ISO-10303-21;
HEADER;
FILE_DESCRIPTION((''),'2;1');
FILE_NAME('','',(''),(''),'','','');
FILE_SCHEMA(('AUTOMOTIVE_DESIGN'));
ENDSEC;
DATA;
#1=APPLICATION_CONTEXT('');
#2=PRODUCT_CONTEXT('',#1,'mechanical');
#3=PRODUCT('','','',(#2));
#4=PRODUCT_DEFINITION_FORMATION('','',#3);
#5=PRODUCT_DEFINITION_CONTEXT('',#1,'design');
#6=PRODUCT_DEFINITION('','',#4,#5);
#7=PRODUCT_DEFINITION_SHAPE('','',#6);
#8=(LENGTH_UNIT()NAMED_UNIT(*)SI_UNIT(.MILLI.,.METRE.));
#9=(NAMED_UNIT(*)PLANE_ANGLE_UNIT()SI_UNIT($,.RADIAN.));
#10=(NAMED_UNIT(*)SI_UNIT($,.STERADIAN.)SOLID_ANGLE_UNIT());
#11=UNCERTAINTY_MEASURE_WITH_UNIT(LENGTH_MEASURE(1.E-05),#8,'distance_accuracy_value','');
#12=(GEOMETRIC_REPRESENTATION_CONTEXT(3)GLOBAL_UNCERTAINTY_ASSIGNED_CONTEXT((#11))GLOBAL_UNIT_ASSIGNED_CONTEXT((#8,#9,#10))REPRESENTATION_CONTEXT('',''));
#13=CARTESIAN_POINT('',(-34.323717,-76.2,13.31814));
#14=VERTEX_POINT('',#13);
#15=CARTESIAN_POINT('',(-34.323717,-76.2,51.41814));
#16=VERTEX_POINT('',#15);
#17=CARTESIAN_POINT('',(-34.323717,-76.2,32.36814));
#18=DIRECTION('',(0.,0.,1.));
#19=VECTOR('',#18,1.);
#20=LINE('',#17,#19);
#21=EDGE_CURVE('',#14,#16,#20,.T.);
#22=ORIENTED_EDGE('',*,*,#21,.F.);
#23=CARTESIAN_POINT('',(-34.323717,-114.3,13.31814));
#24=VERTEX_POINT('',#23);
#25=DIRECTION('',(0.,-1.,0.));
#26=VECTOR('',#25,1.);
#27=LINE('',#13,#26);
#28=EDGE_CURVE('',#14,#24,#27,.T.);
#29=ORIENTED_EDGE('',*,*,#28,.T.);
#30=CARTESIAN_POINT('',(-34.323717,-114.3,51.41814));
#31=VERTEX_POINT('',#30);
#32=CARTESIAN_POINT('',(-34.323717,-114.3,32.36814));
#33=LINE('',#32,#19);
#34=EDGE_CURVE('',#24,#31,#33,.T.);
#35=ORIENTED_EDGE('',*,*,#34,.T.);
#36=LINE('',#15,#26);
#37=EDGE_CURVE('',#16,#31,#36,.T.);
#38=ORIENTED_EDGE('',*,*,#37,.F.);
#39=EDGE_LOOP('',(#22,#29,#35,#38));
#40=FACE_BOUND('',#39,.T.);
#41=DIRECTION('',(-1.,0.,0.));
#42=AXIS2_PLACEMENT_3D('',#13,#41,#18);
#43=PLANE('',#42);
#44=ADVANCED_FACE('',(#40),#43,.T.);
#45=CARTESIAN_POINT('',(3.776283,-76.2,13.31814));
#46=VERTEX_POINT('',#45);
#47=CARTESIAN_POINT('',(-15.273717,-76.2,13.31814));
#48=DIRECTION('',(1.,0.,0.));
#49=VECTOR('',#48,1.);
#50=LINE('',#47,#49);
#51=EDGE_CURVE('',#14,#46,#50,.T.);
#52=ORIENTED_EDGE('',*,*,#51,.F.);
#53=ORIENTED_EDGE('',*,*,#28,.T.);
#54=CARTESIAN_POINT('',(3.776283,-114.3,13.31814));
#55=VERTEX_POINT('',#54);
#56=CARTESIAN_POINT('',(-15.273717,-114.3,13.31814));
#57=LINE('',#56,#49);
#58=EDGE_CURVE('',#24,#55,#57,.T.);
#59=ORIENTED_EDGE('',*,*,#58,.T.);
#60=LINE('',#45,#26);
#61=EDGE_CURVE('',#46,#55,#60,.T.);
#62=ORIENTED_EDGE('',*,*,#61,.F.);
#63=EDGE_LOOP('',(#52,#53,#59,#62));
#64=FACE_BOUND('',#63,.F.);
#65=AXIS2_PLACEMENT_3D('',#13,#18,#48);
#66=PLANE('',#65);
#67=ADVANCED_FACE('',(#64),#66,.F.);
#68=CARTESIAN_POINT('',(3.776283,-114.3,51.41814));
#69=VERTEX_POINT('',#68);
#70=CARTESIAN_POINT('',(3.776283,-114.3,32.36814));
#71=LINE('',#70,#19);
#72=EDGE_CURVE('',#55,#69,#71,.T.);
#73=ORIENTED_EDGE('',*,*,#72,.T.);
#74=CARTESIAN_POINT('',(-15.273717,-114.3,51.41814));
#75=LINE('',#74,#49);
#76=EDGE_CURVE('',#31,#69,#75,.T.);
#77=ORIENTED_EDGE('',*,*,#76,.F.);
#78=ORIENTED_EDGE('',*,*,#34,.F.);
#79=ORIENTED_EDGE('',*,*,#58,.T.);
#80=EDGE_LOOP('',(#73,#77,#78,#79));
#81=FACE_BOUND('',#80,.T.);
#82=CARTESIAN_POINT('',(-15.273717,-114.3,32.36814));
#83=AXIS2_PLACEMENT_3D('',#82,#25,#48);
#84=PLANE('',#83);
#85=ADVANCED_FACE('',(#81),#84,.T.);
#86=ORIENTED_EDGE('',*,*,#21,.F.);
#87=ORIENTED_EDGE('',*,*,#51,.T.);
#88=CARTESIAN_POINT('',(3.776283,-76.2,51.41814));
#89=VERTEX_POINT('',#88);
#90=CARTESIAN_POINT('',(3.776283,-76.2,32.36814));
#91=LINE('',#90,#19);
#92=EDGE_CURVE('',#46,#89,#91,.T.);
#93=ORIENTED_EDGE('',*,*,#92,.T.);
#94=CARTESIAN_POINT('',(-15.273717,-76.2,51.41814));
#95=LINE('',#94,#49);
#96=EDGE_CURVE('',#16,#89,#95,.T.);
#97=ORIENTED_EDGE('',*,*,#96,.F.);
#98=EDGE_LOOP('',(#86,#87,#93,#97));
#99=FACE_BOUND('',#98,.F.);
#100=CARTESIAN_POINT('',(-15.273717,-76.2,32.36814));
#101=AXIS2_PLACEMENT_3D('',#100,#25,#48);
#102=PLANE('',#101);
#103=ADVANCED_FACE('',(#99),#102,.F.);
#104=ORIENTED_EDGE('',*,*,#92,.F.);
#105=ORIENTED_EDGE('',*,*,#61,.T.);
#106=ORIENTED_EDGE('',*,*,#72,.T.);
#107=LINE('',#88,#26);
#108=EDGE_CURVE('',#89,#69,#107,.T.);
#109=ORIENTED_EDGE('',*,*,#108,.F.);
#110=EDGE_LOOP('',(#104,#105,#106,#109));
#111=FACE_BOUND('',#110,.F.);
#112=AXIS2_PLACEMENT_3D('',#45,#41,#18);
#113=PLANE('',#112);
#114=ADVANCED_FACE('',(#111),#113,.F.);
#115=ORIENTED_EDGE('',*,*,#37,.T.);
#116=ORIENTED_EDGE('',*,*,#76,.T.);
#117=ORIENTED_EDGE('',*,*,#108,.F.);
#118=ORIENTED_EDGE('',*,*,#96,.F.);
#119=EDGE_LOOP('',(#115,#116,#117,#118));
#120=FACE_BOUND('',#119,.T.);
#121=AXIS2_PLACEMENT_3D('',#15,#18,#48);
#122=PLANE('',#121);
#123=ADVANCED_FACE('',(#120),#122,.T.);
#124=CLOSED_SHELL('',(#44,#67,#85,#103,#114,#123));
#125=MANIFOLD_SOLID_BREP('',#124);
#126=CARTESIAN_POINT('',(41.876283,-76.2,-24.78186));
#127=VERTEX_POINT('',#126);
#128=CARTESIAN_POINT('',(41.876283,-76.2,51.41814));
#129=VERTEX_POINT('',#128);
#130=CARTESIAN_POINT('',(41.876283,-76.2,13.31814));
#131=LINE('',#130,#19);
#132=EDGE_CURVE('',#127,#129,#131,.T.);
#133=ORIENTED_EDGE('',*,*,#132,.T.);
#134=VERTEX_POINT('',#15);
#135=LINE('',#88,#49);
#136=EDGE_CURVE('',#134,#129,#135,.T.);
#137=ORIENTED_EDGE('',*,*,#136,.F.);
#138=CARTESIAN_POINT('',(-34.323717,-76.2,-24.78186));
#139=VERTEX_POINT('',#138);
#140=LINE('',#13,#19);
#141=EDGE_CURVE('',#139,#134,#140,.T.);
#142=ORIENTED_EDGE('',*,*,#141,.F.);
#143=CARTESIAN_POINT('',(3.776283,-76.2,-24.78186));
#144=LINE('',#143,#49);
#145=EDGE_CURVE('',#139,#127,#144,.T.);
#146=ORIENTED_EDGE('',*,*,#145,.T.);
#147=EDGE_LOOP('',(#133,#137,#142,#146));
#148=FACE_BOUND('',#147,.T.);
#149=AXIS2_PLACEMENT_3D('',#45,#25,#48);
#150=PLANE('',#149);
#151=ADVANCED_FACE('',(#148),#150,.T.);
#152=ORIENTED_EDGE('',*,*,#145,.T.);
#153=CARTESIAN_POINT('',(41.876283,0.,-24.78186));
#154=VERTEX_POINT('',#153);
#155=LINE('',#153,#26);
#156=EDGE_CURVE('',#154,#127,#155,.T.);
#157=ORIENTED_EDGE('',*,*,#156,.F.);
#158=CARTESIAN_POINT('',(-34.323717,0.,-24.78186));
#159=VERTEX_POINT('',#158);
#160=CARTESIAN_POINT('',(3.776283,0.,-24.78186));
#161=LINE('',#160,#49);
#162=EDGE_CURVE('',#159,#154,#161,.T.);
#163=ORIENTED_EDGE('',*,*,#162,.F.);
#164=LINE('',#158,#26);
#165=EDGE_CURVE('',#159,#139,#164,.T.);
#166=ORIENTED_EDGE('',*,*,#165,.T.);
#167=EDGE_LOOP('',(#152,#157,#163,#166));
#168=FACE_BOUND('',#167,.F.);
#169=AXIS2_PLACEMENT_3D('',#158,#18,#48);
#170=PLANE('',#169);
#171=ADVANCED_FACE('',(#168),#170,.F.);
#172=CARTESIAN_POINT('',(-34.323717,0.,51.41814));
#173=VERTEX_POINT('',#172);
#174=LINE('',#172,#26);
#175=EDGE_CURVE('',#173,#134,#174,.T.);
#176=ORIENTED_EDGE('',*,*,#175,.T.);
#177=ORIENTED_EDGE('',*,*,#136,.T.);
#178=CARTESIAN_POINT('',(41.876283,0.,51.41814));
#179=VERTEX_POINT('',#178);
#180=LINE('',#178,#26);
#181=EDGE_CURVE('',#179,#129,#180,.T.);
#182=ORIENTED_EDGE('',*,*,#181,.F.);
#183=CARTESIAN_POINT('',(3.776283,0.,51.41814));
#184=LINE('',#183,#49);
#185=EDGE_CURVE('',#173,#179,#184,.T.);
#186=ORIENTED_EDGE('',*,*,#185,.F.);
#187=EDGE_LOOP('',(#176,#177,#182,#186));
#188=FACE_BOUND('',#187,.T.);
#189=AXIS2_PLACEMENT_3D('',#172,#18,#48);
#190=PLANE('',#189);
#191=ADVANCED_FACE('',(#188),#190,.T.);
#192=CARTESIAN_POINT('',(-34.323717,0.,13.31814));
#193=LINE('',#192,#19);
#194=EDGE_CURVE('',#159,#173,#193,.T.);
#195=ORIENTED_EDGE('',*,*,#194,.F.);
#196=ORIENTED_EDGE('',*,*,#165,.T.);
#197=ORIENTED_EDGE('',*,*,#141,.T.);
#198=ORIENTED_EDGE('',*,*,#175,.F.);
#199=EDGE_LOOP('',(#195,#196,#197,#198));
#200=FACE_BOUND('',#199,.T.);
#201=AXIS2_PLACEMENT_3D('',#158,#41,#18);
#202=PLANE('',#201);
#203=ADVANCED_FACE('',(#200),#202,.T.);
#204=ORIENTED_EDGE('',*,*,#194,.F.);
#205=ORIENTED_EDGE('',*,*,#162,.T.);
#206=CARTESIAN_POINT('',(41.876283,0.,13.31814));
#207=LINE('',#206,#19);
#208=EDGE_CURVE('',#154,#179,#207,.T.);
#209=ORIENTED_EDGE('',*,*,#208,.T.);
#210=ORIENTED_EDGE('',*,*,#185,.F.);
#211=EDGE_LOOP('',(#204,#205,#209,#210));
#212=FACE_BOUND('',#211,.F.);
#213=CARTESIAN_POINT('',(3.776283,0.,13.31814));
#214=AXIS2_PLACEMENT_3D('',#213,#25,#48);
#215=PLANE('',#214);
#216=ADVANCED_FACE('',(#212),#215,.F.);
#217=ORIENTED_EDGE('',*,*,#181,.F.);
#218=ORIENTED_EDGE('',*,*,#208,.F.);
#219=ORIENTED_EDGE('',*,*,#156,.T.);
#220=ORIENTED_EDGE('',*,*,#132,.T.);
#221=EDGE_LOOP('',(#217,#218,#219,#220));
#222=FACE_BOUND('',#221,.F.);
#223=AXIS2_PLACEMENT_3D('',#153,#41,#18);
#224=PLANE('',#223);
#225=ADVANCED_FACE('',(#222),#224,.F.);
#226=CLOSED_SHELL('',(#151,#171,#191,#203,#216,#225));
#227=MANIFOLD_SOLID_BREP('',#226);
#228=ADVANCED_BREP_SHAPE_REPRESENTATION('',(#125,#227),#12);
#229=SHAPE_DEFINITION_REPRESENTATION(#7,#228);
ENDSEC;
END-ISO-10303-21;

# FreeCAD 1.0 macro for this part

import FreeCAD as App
import Part
import Sketcher

V = App.Vector
Q = App.Units.Quantity


def add_polygon(sketch, points):
    """Adds a closed chain of lines whose ends are joined by coincident constraints."""
    first, n = sketch.GeometryCount, len(points)
    for a, b in zip(points, points[1:] + points[:1]):
        sketch.addGeometry(Part.LineSegment(App.Vector(*a, 0), App.Vector(*b, 0)), False)
    for i in range(n):
        sketch.addConstraint(Sketcher.Constraint("Coincident", first + i, 2, first + (i + 1) % n, 1))

doc = App.newDocument("Part")
body = doc.addObject("PartDesign::Body", "Body")

# Sketch on XZ plane
sketch1 = doc.addObject("Sketcher::SketchObject", "Sketch")
body.addObject(sketch1)
sketch1.AttachmentSupport = (doc.XZ_Plane, [""])
sketch1.MapMode = "FlatFace"
add_polygon(sketch1, [(-34, 51), (-34, -25), (42, -25), (42, 51)])  # lines 0-3
sketch1.addConstraint([
    Sketcher.Constraint("Vertical", 0),
    Sketcher.Constraint("Horizontal", 1),
    Sketcher.Constraint("Vertical", 2),
    Sketcher.Constraint("Horizontal", 3),
    Sketcher.Constraint("Equal", 3, 0),
    Sketcher.Constraint("DistanceX", 1, 1, 1, 2, Q("3 in")),
    Sketcher.Constraint("DistanceY", 0, 2, -1, 1, 24.78186),
    Sketcher.Constraint("DistanceX", 0, 2, -1, 1, 34.323717),
])
pad1 = doc.addObject("PartDesign::Pad", "Pad")
body.addObject(pad1)
pad1.Profile = sketch1
pad1.Length = Q("3 in")
body2 = doc.addObject("PartDesign::Body", "Body001")

# Sketch on XZ plane
sketch2 = doc.addObject("Sketcher::SketchObject", "Sketch001")
body2.addObject(sketch2)
sketch2.AttachmentSupport = (doc.getObject("XZ_Plane001"), [""])
sketch2.MapMode = "FlatFace"
sketch2.AttachmentOffset = App.Placement(V(0, 0, 3 * 25.4), App.Rotation())
add_polygon(sketch2, [(-34, 51), (-34, 13), (4, 13), (4, 51)])  # lines 0-3
sketch2.addConstraint([
    Sketcher.Constraint("Vertical", 0),
    Sketcher.Constraint("Horizontal", 1),
    Sketcher.Constraint("Vertical", 2),
    Sketcher.Constraint("Horizontal", 3),
    Sketcher.Constraint("Equal", 3, 0),
    Sketcher.Constraint("DistanceX", 1, 1, 1, 2, Q("1.5 in")),
    Sketcher.Constraint("DistanceY", -1, 1, 0, 2, 13.31814),
    Sketcher.Constraint("DistanceX", 0, 2, -1, 1, 34.323717),
])
pad2 = doc.addObject("PartDesign::Pad", "Pad001")
body2.addObject(pad2)
pad2.Profile = sketch2
pad2.Length = Q("1.5 in")

doc.recompute()
